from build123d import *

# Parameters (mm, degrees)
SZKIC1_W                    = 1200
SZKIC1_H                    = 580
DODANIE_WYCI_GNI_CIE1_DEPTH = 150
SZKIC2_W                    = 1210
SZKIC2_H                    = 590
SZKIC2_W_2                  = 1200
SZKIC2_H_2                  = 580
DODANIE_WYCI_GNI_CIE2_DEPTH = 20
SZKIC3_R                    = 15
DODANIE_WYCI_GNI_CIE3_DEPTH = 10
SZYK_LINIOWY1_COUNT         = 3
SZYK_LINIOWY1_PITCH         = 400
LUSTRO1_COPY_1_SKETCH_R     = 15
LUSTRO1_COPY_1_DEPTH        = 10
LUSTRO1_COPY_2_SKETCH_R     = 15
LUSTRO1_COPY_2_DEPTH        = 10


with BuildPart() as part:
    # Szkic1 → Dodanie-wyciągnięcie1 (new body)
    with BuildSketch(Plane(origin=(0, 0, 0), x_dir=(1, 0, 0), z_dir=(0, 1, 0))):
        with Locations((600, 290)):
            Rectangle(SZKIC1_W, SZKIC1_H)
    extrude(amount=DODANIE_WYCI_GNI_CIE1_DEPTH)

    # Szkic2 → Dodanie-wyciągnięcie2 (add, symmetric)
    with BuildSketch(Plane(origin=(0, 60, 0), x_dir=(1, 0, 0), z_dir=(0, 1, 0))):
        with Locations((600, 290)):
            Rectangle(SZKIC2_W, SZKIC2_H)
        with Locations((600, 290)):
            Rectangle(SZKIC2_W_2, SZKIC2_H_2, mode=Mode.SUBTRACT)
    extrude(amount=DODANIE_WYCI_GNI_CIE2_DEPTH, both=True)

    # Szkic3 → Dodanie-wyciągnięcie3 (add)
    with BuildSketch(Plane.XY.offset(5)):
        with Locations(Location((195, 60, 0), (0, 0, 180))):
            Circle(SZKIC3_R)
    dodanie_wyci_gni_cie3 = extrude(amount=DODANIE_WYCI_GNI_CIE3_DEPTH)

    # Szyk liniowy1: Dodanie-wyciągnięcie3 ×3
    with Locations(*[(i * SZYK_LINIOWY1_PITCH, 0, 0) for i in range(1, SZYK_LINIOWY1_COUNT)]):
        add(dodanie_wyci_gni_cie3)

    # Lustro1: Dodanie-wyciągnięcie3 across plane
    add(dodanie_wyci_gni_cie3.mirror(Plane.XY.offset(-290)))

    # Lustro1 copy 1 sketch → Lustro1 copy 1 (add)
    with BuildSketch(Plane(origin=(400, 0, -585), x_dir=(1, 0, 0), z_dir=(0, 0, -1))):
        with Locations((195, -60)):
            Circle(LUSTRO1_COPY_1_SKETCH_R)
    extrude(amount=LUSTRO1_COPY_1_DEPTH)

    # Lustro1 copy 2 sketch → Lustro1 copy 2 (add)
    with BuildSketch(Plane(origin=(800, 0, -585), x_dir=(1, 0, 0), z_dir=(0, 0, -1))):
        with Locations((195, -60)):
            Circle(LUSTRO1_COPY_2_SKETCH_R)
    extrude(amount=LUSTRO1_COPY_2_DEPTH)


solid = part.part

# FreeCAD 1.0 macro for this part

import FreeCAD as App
import Part
import Sketcher
from FreeCAD import Vector

doc = App.newDocument("Part")
body = doc.addObject("PartDesign::Body", "Body")

# Sketch on XZ plane
sketch1 = doc.addObject("Sketcher::SketchObject", "Sketch")
body.addObject(sketch1)
sketch1.AttachmentSupport = (doc.XZ_Plane, [""])
sketch1.MapMode = "FlatFace"
sketch1.addGeometry([
    Part.LineSegment(Vector(0, -580, 0), Vector(0, 0, 0)),
    Part.LineSegment(Vector(0, 0, 0), Vector(1200, 0, 0)),
    Part.LineSegment(Vector(1200, 0, 0), Vector(1200, -580, 0)),
    Part.LineSegment(Vector(1200, -580, 0), Vector(0, -580, 0)),
], False)
sketch1.addConstraint([
    Sketcher.Constraint("Coincident", 0, 2, 1, 1),
    Sketcher.Constraint("Coincident", 1, 2, 2, 1),
    Sketcher.Constraint("Coincident", 2, 2, 3, 1),
    Sketcher.Constraint("Coincident", 3, 2, 0, 1),
    Sketcher.Constraint("Vertical", 0),
    Sketcher.Constraint("Horizontal", 1),
    Sketcher.Constraint("Vertical", 2),
    Sketcher.Constraint("Horizontal", 3),
    Sketcher.Constraint("Coincident", 0, 2, -1, 1),
    Sketcher.Constraint("DistanceX", 1, 1, 1, 2, 1200.0),
    Sketcher.Constraint("DistanceY", 0, 1, 0, 2, 580.0),
])
pad1 = doc.addObject("PartDesign::Pad", "Pad")
body.addObject(pad1)
pad1.Profile = sketch1
pad1.Length = 150
pad1.Reversed = True

# Sketch on XZ plane
sketch2 = doc.addObject("Sketcher::SketchObject", "Sketch001")
body.addObject(sketch2)
sketch2.AttachmentSupport = (doc.XZ_Plane, [""])
sketch2.MapMode = "FlatFace"
sketch2.AttachmentOffset = App.Placement(Vector(0, 0, -60), App.Rotation())
sketch2.addGeometry([
    Part.LineSegment(Vector(-5, -585, 0), Vector(-5, 5, 0)),  # 0
    Part.LineSegment(Vector(-5, 5, 0), Vector(1205, 5, 0)),  # 1
    Part.LineSegment(Vector(1205, 5, 0), Vector(1205, -585, 0)),  # 2
    Part.LineSegment(Vector(1205, -585, 0), Vector(-5, -585, 0)),  # 3
    Part.LineSegment(Vector(1200, 0, 0), Vector(0, 0, 0)),  # 4
    Part.LineSegment(Vector(0, 0, 0), Vector(0, -580, 0)),  # 5
    Part.LineSegment(Vector(0, -580, 0), Vector(1200, -580, 0)),  # 6
    Part.LineSegment(Vector(1200, -580, 0), Vector(1200, 0, 0)),  # 7
], False)
sketch2.addConstraint([
    Sketcher.Constraint("Coincident", 0, 2, 1, 1),
    Sketcher.Constraint("Coincident", 1, 2, 2, 1),
    Sketcher.Constraint("Coincident", 2, 2, 3, 1),
    Sketcher.Constraint("Coincident", 3, 2, 0, 1),
    Sketcher.Constraint("Coincident", 4, 2, 5, 1),
    Sketcher.Constraint("Coincident", 5, 2, 6, 1),
    Sketcher.Constraint("Coincident", 6, 2, 7, 1),
    Sketcher.Constraint("Coincident", 7, 2, 4, 1),
    Sketcher.Constraint("Vertical", 0),
    Sketcher.Constraint("Horizontal", 1),
    Sketcher.Constraint("Vertical", 2),
    Sketcher.Constraint("Horizontal", 3),
    Sketcher.Constraint("Horizontal", 4),
    Sketcher.Constraint("Vertical", 5),
    Sketcher.Constraint("Horizontal", 6),
    Sketcher.Constraint("Vertical", 7),
    Sketcher.Constraint("Coincident", 4, 2, -1, 1),
    Sketcher.Constraint("DistanceX", 1, 1, 1, 2, 1210.0),
    Sketcher.Constraint("DistanceX", 4, 2, 4, 1, 1200.0),
    Sketcher.Constraint("DistanceY", 0, 1, 0, 2, 590.0),
    Sketcher.Constraint("DistanceY", 5, 2, 5, 1, 580.0),
    Sketcher.Constraint("DistanceX", 0, 2, -1, 1, 5.0),
    Sketcher.Constraint("DistanceY", -1, 1, 0, 2, 5.0),
])
pad2 = doc.addObject("PartDesign::Pad", "Pad001")
body.addObject(pad2)
pad2.Profile = sketch2
pad2.Length = 40
pad2.Midplane = True

# Sketch on XY plane
sketch3 = doc.addObject("Sketcher::SketchObject", "Sketch002")
body.addObject(sketch3)
sketch3.AttachmentSupport = (doc.XY_Plane, [""])
sketch3.MapMode = "FlatFace"
sketch3.AttachmentOffset = App.Placement(Vector(0, 0, 5), App.Rotation())
sketch3.addGeometry(Part.Circle(Vector(195, 60, 0), Vector(0, 0, 1), 15), False)
sketch3.addConstraint([
    Sketcher.Constraint("Diameter", 0, 30.0),
    Sketcher.Constraint("DistanceX", -1, 1, 0, 3, 195.0),
    Sketcher.Constraint("DistanceY", -1, 1, 0, 3, 60.0),
])
pad3 = doc.addObject("PartDesign::Pad", "Pad002")
body.addObject(pad3)
pad3.Profile = sketch3
pad3.Length = 10
doc.recompute()

linearpattern = doc.addObject("PartDesign::LinearPattern", "LinearPattern")
body.addObject(linearpattern)
linearpattern.Originals = [pad3]
linearpattern.Direction = (doc.X_Axis, [""])
linearpattern.Mode = "offset"
linearpattern.Offset = 400
linearpattern.Occurrences = 3
body.Tip = linearpattern
doc.recompute()

datumplane = doc.addObject("PartDesign::Plane", "DatumPlane")
body.addObject(datumplane)
datumplane.AttachmentSupport = (doc.XY_Plane, [""])
datumplane.MapMode = "FlatFace"
datumplane.AttachmentOffset = App.Placement(Vector(0, 0, -290), App.Rotation())
mirrored = doc.addObject("PartDesign::Mirrored", "Mirrored")
body.addObject(mirrored)
mirrored.Originals = [pad3]
mirrored.MirrorPlane = (datumplane, [""])
body.Tip = mirrored

# Sketch on XY plane
sketch4 = doc.addObject("Sketcher::SketchObject", "Sketch003")
body.addObject(sketch4)
sketch4.AttachmentSupport = (doc.XY_Plane, [""])
sketch4.MapMode = "FlatFace"
sketch4.AttachmentOffset = App.Placement(Vector(0, 0, -585), App.Rotation())
sketch4.addGeometry(Part.Circle(Vector(595, 60, 0), Vector(0, 0, 1), 15), False)
sketch4.addConstraint([
    Sketcher.Constraint("Diameter", 0, 30.0),
    Sketcher.Constraint("DistanceX", -1, 1, 0, 3, 595.0),
    Sketcher.Constraint("DistanceY", -1, 1, 0, 3, 60.0),
])
pad4 = doc.addObject("PartDesign::Pad", "Pad003")
body.addObject(pad4)
pad4.Profile = sketch4
pad4.Length = 10
pad4.Reversed = True

# Sketch on XY plane
sketch5 = doc.addObject("Sketcher::SketchObject", "Sketch004")
body.addObject(sketch5)
sketch5.AttachmentSupport = (doc.XY_Plane, [""])
sketch5.MapMode = "FlatFace"
sketch5.AttachmentOffset = App.Placement(Vector(0, 0, -585), App.Rotation())
sketch5.addGeometry(Part.Circle(Vector(995, 60, 0), Vector(0, 0, 1), 15), False)
sketch5.addConstraint([
    Sketcher.Constraint("Diameter", 0, 30.0),
    Sketcher.Constraint("DistanceX", -1, 1, 0, 3, 995.0),
    Sketcher.Constraint("DistanceY", -1, 1, 0, 3, 60.0),
])
pad5 = doc.addObject("PartDesign::Pad", "Pad004")
body.addObject(pad5)
pad5.Profile = sketch5
pad5.Length = 10
pad5.Reversed = True

doc.recompute()
